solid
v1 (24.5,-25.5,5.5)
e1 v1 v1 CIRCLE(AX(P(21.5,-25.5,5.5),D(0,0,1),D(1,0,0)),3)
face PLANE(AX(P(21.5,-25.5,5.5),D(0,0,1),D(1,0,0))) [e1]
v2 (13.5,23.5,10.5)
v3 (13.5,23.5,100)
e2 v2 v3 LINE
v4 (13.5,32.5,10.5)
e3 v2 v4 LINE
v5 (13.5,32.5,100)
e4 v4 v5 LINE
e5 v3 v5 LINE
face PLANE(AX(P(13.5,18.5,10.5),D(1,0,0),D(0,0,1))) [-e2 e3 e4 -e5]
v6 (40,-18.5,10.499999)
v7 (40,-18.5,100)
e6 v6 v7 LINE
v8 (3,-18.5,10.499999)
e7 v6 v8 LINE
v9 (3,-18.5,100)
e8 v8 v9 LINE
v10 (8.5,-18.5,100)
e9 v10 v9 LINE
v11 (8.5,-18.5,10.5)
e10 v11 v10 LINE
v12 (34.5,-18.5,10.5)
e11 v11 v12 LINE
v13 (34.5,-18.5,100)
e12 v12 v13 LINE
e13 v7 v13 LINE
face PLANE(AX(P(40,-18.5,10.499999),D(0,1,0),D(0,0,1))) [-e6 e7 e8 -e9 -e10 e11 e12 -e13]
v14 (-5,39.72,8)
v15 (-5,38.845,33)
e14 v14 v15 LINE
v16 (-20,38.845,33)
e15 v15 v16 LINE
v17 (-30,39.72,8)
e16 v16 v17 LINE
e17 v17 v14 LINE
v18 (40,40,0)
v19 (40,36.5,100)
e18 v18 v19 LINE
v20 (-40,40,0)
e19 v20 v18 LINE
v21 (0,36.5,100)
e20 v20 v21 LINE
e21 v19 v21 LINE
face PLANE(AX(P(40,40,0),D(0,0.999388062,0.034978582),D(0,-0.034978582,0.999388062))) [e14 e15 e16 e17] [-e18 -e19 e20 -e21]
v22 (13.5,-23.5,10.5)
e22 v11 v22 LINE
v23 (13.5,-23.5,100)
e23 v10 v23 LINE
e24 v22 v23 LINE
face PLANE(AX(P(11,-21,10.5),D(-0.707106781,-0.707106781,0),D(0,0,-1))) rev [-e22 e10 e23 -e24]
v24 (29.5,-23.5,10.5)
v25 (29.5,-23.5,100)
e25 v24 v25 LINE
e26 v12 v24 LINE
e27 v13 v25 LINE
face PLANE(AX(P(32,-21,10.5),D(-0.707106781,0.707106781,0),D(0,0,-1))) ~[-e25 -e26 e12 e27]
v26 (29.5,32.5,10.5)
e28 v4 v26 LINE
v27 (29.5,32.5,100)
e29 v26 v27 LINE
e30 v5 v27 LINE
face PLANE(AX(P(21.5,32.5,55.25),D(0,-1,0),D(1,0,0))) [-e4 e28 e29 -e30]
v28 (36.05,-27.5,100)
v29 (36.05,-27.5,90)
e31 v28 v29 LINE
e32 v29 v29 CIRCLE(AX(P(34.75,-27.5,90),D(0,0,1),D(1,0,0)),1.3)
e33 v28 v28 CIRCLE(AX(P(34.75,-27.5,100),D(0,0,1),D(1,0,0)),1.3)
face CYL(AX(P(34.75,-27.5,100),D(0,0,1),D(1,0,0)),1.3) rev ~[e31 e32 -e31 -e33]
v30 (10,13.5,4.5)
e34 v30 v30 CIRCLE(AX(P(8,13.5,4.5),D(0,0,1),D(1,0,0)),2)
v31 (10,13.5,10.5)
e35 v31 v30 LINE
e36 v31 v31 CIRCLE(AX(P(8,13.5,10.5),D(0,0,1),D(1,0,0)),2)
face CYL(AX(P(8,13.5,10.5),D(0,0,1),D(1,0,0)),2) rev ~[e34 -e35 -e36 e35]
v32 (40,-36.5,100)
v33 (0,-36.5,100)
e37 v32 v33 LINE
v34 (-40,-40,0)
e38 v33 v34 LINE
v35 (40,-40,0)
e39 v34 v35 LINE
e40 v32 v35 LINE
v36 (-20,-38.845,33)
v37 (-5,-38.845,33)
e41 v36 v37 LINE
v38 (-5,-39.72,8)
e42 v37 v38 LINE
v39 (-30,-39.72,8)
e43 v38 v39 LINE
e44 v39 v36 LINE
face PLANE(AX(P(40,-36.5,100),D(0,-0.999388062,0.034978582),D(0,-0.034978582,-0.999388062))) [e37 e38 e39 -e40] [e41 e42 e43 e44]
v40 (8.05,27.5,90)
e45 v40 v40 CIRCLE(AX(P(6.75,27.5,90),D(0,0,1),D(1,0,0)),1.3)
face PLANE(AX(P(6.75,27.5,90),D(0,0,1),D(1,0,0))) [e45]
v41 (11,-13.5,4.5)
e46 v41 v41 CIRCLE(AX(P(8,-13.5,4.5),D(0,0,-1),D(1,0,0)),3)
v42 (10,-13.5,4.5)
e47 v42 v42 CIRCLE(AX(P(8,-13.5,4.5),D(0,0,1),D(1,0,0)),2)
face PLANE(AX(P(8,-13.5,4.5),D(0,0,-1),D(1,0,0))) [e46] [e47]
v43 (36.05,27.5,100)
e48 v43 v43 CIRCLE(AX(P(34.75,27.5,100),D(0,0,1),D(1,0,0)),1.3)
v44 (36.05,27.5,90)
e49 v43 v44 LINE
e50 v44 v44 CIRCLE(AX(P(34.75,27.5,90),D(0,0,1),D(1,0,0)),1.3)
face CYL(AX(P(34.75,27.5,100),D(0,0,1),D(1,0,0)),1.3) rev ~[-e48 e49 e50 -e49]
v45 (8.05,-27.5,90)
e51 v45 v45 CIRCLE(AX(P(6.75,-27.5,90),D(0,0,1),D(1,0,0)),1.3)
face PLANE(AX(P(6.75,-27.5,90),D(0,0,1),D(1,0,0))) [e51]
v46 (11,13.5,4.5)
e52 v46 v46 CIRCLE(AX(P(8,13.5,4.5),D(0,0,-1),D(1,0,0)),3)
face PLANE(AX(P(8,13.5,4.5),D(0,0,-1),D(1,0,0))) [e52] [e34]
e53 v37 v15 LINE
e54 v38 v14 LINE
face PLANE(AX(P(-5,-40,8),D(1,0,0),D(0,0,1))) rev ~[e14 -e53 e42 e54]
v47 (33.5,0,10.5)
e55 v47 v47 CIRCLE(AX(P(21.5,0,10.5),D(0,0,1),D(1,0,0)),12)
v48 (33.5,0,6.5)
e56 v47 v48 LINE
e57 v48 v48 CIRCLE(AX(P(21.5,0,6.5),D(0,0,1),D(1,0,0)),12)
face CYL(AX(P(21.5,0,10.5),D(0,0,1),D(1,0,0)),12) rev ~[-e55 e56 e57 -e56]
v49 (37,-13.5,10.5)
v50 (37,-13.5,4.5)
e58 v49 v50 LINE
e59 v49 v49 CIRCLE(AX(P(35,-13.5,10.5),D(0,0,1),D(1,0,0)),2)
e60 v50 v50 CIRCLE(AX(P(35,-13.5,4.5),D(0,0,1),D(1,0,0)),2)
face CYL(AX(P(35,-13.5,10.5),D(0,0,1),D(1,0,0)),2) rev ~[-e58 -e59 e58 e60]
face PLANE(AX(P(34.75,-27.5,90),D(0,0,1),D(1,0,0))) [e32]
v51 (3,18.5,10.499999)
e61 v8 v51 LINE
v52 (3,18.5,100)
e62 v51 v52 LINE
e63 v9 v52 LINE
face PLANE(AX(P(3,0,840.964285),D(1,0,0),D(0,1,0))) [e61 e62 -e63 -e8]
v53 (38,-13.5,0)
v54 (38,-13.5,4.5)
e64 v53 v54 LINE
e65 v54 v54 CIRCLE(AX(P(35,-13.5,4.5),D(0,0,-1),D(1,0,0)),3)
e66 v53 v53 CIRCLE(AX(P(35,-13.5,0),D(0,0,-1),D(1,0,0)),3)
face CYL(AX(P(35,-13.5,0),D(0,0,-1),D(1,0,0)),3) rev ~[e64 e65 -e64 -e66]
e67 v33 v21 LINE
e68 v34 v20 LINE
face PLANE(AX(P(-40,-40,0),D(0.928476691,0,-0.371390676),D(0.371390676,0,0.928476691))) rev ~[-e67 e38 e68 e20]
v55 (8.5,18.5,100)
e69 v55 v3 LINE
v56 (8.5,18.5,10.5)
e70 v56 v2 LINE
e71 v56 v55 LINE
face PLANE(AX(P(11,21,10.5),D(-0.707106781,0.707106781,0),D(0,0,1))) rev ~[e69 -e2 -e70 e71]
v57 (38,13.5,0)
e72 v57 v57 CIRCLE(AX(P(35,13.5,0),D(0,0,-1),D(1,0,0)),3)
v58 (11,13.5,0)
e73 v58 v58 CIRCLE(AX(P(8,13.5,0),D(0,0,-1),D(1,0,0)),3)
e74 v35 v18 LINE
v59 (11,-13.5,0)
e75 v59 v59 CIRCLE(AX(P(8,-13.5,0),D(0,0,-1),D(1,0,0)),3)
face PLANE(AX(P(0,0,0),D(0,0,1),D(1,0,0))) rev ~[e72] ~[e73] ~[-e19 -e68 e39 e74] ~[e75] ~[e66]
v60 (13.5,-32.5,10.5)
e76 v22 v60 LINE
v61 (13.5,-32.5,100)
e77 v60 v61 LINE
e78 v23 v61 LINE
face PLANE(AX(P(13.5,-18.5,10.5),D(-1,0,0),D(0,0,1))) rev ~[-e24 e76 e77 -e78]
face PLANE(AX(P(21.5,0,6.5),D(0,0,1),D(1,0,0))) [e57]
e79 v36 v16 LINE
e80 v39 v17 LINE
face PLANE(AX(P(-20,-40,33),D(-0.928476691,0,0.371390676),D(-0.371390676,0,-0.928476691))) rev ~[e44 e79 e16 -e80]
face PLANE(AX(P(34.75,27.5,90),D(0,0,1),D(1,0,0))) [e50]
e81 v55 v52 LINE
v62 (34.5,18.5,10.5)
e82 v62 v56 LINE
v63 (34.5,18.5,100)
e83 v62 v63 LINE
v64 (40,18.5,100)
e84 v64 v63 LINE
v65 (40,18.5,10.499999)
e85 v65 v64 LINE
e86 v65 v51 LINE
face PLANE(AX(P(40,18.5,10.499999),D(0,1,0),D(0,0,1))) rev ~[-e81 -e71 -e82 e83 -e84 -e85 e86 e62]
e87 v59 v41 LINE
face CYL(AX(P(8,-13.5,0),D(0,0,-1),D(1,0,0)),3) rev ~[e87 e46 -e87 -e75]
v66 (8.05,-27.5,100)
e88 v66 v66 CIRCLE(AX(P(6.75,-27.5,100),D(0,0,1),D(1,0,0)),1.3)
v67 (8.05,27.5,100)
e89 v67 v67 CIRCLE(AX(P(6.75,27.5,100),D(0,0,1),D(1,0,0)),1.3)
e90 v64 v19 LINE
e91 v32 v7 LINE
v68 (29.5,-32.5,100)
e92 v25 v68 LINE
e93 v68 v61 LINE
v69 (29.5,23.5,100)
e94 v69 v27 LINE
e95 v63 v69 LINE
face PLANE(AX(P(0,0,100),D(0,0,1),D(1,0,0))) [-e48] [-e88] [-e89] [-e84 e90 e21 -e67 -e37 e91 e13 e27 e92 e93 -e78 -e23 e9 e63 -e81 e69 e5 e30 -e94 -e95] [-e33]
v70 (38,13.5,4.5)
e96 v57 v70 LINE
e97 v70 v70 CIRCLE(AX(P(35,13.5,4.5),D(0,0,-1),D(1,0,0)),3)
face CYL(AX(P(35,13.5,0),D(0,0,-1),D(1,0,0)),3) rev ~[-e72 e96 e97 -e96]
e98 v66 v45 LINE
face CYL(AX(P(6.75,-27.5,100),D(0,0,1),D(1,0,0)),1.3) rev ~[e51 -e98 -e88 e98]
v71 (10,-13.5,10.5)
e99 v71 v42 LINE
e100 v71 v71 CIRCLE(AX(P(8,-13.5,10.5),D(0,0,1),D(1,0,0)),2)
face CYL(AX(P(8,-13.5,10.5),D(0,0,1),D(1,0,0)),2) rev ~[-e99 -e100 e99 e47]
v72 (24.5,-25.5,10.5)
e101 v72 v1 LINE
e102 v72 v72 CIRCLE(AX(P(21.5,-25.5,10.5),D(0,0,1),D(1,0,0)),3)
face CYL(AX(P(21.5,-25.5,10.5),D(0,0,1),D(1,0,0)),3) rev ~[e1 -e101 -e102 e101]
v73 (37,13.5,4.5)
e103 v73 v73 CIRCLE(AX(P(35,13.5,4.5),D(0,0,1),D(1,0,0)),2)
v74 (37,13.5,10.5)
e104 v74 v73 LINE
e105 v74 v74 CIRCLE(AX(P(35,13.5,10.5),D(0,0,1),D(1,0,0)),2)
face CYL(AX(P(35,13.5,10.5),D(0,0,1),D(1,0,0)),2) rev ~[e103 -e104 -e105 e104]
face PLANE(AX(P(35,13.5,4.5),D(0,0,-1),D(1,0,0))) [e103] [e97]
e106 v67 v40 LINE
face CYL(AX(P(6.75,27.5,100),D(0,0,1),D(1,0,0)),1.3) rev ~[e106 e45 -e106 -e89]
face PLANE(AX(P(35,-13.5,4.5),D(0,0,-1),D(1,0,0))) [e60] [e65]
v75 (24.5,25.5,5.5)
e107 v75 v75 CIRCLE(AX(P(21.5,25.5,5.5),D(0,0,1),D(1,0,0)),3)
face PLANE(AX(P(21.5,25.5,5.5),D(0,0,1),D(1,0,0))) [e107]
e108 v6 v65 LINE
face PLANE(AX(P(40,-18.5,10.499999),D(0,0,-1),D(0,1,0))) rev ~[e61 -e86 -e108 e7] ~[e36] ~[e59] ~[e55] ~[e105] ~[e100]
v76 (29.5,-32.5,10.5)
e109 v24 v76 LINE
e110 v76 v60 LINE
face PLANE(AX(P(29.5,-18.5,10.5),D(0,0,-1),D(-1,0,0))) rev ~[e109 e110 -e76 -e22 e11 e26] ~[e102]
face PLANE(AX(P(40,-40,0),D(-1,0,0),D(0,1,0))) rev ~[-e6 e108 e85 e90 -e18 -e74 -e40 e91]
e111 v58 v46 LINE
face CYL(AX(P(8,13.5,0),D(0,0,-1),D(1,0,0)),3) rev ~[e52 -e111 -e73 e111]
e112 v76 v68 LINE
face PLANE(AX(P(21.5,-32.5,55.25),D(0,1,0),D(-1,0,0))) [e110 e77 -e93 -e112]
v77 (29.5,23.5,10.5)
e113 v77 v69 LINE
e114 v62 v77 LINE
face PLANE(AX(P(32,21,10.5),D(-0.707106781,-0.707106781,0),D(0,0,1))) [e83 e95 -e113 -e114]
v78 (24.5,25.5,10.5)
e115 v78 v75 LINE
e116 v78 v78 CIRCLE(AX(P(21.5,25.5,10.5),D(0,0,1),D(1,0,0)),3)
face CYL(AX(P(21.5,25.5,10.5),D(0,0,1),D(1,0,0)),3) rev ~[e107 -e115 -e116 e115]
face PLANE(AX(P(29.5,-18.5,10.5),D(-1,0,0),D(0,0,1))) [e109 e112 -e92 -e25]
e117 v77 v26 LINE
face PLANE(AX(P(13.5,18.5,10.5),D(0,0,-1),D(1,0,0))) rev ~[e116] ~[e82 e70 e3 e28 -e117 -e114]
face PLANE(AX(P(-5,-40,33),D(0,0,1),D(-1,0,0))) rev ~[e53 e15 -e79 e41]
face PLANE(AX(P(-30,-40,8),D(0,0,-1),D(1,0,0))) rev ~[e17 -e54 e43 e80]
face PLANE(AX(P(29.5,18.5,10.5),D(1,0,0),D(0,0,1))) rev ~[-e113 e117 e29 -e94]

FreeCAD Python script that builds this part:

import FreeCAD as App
import Part
import Sketcher


def edges_at(feature, points):
    """Names of the edges that pass closest to the given points."""
    edges = feature.Shape.Edges
    near = lambda p: min(range(len(edges)), key=lambda i: edges[i].distToShape(Part.Vertex(*p))[0])
    return sorted({f"Edge{near(p) + 1}" for p in points})


def add_polygon(sketch, points):
    """Adds a closed chain of lines whose ends are joined by coincident constraints."""
    first, n = sketch.GeometryCount, len(points)
    for a, b in zip(points, points[1:] + points[:1]):
        sketch.addGeometry(Part.LineSegment(App.Vector(*a, 0), App.Vector(*b, 0)), False)
    for i in range(n):
        sketch.addConstraint(Sketcher.Constraint("Coincident", first + i, 2, first + (i + 1) % n, 1))

doc = App.newDocument("Part")
body = doc.addObject("PartDesign::Body", "Body")

# Sketch on XY plane
sketch1 = doc.addObject("Sketcher::SketchObject", "Sketch")
body.addObject(sketch1)
sketch1.AttachmentSupport = (doc.XY_Plane, [""])
sketch1.MapMode = "FlatFace"
add_polygon(sketch1, [(-40, 40), (-40, -40), (40, -40), (40, 40)])  # lines 0-3
sketch1.addConstraint([
    Sketcher.Constraint("Vertical", 0),
    Sketcher.Constraint("Horizontal", 1),
    Sketcher.Constraint("Vertical", 2),
    Sketcher.Constraint("Horizontal", 3),
    Sketcher.Constraint("Symmetric", 0, 2, 2, 2, -1, 1),
    Sketcher.Constraint("Equal", 3, 0),
    Sketcher.Constraint("DistanceX", 1, 1, 1, 2, 80.0),
])
pad1 = doc.addObject("PartDesign::Pad", "Pad")
body.addObject(pad1)
pad1.Profile = sketch1
pad1.Length = 100

# Sketch on XZ plane
sketch2 = doc.addObject("Sketcher::SketchObject", "Sketch001")
body.addObject(sketch2)
sketch2.AttachmentSupport = (doc.XZ_Plane, [""])
sketch2.MapMode = "FlatFace"
sketch2.AttachmentOffset = App.Placement(App.Vector(0, 0, 40), App.Rotation())
add_polygon(sketch2, [(-40, 0), (0, 100), (-40, 100)])  # lines 0-2
add_polygon(sketch2, [(-30, 8), (-5, 8), (-5, 33), (-20, 33)])  # lines 3-6
sketch2.addConstraint([
    Sketcher.Constraint("Horizontal", 1),
    Sketcher.Constraint("Vertical", 2),
    Sketcher.Constraint("Horizontal", 3),
    Sketcher.Constraint("Vertical", 4),
    Sketcher.Constraint("Horizontal", 5),
    Sketcher.Constraint("PointOnObject", 0, 2, -2),
    Sketcher.Constraint("PointOnObject", 2, 2, -1),
    Sketcher.Constraint("Parallel", 0, 6),
    Sketcher.Constraint("Equal", 3, 4),
    Sketcher.Constraint("DistanceX", 1, 2, 1, 1, 40.0),
    Sketcher.Constraint("DistanceX", 3, 1, 3, 2, 25.0),
    Sketcher.Constraint("DistanceX", 5, 2, 5, 1, 15.0),
    Sketcher.Constraint("DistanceX", 3, 2, -1, 1, 5.0),
    Sketcher.Constraint("DistanceY", -1, 1, 3, 2, 8.0),
])
pocket1 = doc.addObject("PartDesign::Pocket", "Pocket")
body.addObject(pocket1)
pocket1.Profile = sketch2
pocket1.Type = "ThroughAll"

# Sketch on YZ plane
sketch3 = doc.addObject("Sketcher::SketchObject", "Sketch002")
body.addObject(sketch3)
sketch3.AttachmentSupport = (doc.YZ_Plane, [""])
sketch3.MapMode = "FlatFace"
sketch3.AttachmentOffset = App.Placement(App.Vector(0, 0, 40), App.Rotation())
add_polygon(sketch3, [(-40, 0), (-36.5, 100), (-40, 100)])  # lines 0-2
add_polygon(sketch3, [(36.5, 100), (40, 0), (40, 100)])  # lines 3-5
sketch3.addConstraint([
    Sketcher.Constraint("Horizontal", 1),
    Sketcher.Constraint("Vertical", 2),
    Sketcher.Constraint("Vertical", 4),
    Sketcher.Constraint("Horizontal", 5),
    Sketcher.Constraint("Symmetric", 2, 2, 3, 2, -1, 1),
    Sketcher.Constraint("Symmetric", 0, 2, 5, 2, -2),
    Sketcher.Constraint("PointOnObject", 2, 2, -1),
    Sketcher.Constraint("DistanceY", 2, 2, 2, 1, 100.0),
    Sketcher.Constraint("DistanceX", 1, 2, 1, 1, 3.5),
    Sketcher.Constraint("DistanceX", 1, 2, -1, 1, 40.0),
])
pocket2 = doc.addObject("PartDesign::Pocket", "Pocket001")
body.addObject(pocket2)
pocket2.Profile = sketch3
pocket2.Type = "ThroughAll"

# Sketch on YZ plane
sketch4 = doc.addObject("Sketcher::SketchObject", "Sketch003")
body.addObject(sketch4)
sketch4.AttachmentSupport = (doc.YZ_Plane, [""])
sketch4.MapMode = "FlatFace"
sketch4.AttachmentOffset = App.Placement(App.Vector(0, 0, 40), App.Rotation())
add_polygon(sketch4, [(-18.5, 1671.42857), (-18.5, 10.499999), (18.5, 10.499999), (18.5, 1671.42857)])  # lines 0-3
sketch4.addConstraint([
    Sketcher.Constraint("Vertical", 0),
    Sketcher.Constraint("Horizontal", 1),
    Sketcher.Constraint("Vertical", 2),
    Sketcher.Constraint("Horizontal", 3),
    Sketcher.Constraint("DistanceX", 1, 1, 1, 2, 37.0),
    Sketcher.Constraint("DistanceX", 0, 2, -1, 1, 18.5),
    Sketcher.Constraint("DistanceY", -1, 1, 0, 2, 10.499999),
    Sketcher.Constraint("DistanceY", 0, 2, 0, 1, 1660.928571),
])
pocket3 = doc.addObject("PartDesign::Pocket", "Pocket002")
body.addObject(pocket3)
pocket3.Profile = sketch4
pocket3.Length = 37

# Sketch on XY plane
sketch5 = doc.addObject("Sketcher::SketchObject", "Sketch004")
body.addObject(sketch5)
sketch5.AttachmentSupport = (doc.XY_Plane, [""])
sketch5.MapMode = "FlatFace"
sketch5.AttachmentOffset = App.Placement(App.Vector(0, 0, 10.5), App.Rotation())
sketch5.addGeometry(Part.Circle(App.Vector(21.5, 0, 0), App.Vector(0, 0, 1), 12), False)
sketch5.addConstraint([
    Sketcher.Constraint("PointOnObject", 0, 3, -1),
    Sketcher.Constraint("Diameter", 0, 24.0),
    Sketcher.Constraint("DistanceX", -1, 1, 0, 3, 21.5),
])
pocket4 = doc.addObject("PartDesign::Pocket", "Pocket003")
body.addObject(pocket4)
pocket4.Profile = sketch5
pocket4.Length = 4

# Sketch on XY plane
sketch6 = doc.addObject("Sketcher::SketchObject", "Sketch005")
body.addObject(sketch6)
sketch6.AttachmentSupport = (doc.XY_Plane, [""])
sketch6.MapMode = "FlatFace"
sketch6.AttachmentOffset = App.Placement(App.Vector(0, 0, 10.5), App.Rotation())
sketch6.addGeometry([
    Part.Circle(App.Vector(8, 13.5, 0), App.Vector(0, 0, 1), 2),
    Part.Circle(App.Vector(35, 13.5, 0), App.Vector(0, 0, 1), 2),
    Part.Circle(App.Vector(35, -13.5, 0), App.Vector(0, 0, 1), 2),
    Part.Circle(App.Vector(8, -13.5, 0), App.Vector(0, 0, 1), 2),
], False)
sketch6.addConstraint([
    Sketcher.Constraint("Equal", 0, 1),
    Sketcher.Constraint("Equal", 1, 2),
    Sketcher.Constraint("Equal", 2, 3),
    Sketcher.Constraint("Symmetric", 1, 3, 2, 3, -1),
    Sketcher.Constraint("Symmetric", 0, 3, 3, 3, -1),
    Sketcher.Constraint("Horizontal", 0, 3, 1, 3),
    Sketcher.Constraint("Diameter", 0, 4.0),
    Sketcher.Constraint("DistanceX", -1, 1, 0, 3, 8.0),
    Sketcher.Constraint("DistanceX", -1, 1, 1, 3, 35.0),
    Sketcher.Constraint("DistanceY", 2, 3, 1, 3, 27.0),
])
pocket5 = doc.addObject("PartDesign::Pocket", "Pocket004")
body.addObject(pocket5)
pocket5.Profile = sketch6
pocket5.Type = "ThroughAll"

# Sketch on XY plane
sketch7 = doc.addObject("Sketcher::SketchObject", "Sketch006")
body.addObject(sketch7)
sketch7.AttachmentSupport = (doc.XY_Plane, [""])
sketch7.MapMode = "FlatFace"
sketch7.addGeometry([
    Part.Circle(App.Vector(8, -13.5, 0), App.Vector(0, 0, 1), 3),
    Part.Circle(App.Vector(35, -13.5, 0), App.Vector(0, 0, 1), 3),
    Part.Circle(App.Vector(35, 13.5, 0), App.Vector(0, 0, 1), 3),
    Part.Circle(App.Vector(8, 13.5, 0), App.Vector(0, 0, 1), 3),
], False)
sketch7.addConstraint([
    Sketcher.Constraint("Equal", 0, 1),
    Sketcher.Constraint("Equal", 1, 2),
    Sketcher.Constraint("Equal", 2, 3),
    Sketcher.Constraint("Symmetric", 1, 3, 2, 3, -1),
    Sketcher.Constraint("Symmetric", 0, 3, 3, 3, -1),
    Sketcher.Constraint("Horizontal", 0, 3, 1, 3),
    Sketcher.Constraint("Diameter", 0, 6.0),
    Sketcher.Constraint("DistanceX", -1, 1, 0, 3, 8.0),
    Sketcher.Constraint("DistanceX", -1, 1, 1, 3, 35.0),
    Sketcher.Constraint("DistanceY", 1, 3, 2, 3, 27.0),
])
pocket6 = doc.addObject("PartDesign::Pocket", "Pocket005")
body.addObject(pocket6)
pocket6.Profile = sketch7
pocket6.Length = 4.5
pocket6.Reversed = True

# Sketch on XZ plane
sketch8 = doc.addObject("Sketcher::SketchObject", "Sketch007")
body.addObject(sketch8)
sketch8.AttachmentSupport = (doc.XZ_Plane, [""])
sketch8.MapMode = "FlatFace"
sketch8.AttachmentOffset = App.Placement(App.Vector(0, 0, -18.5), App.Rotation())
add_polygon(sketch8, [(13.5, 100), (13.5, 10.5), (29.5, 10.5), (29.5, 100)])  # lines 0-3
sketch8.addConstraint([
    Sketcher.Constraint("Vertical", 0),
    Sketcher.Constraint("Horizontal", 1),
    Sketcher.Constraint("Vertical", 2),
    Sketcher.Constraint("Horizontal", 3),
    Sketcher.Constraint("DistanceX", 1, 1, 1, 2, 16.0),
    Sketcher.Constraint("DistanceY", 0, 2, 0, 1, 89.5),
    Sketcher.Constraint("DistanceY", -1, 1, 2, 2, 100.0),
    Sketcher.Constraint("DistanceX", -1, 1, 0, 2, 13.5),
])
pocket7 = doc.addObject("PartDesign::Pocket", "Pocket006")
body.addObject(pocket7)
pocket7.Profile = sketch8
pocket7.Length = 14

# Sketch on XZ plane
sketch9 = doc.addObject("Sketcher::SketchObject", "Sketch008")
body.addObject(sketch9)
sketch9.AttachmentSupport = (doc.XZ_Plane, [""])
sketch9.MapMode = "FlatFace"
sketch9.AttachmentOffset = App.Placement(App.Vector(0, 0, 18.5), App.Rotation())
add_polygon(sketch9, [(29.5, 100), (29.5, 10.5), (13.5, 10.5), (13.5, 100)])  # lines 0-3
sketch9.addConstraint([
    Sketcher.Constraint("Vertical", 0),
    Sketcher.Constraint("Horizontal", 1),
    Sketcher.Constraint("Vertical", 2),
    Sketcher.Constraint("Horizontal", 3),
    Sketcher.Constraint("DistanceX", 1, 2, 1, 1, 16.0),
    Sketcher.Constraint("DistanceY", 0, 2, 0, 1, 89.5),
    Sketcher.Constraint("DistanceY", -1, 1, 2, 2, 100.0),
    Sketcher.Constraint("DistanceX", -1, 1, 0, 2, 29.5),
])
pocket8 = doc.addObject("PartDesign::Pocket", "Pocket007")
body.addObject(pocket8)
pocket8.Profile = sketch9
pocket8.Length = 14
pocket8.Reversed = True

# Sketch on XY plane
sketch10 = doc.addObject("Sketcher::SketchObject", "Sketch009")
body.addObject(sketch10)
sketch10.AttachmentSupport = (doc.XY_Plane, [""])
sketch10.MapMode = "FlatFace"
sketch10.AttachmentOffset = App.Placement(App.Vector(0, 0, 10.5), App.Rotation())
sketch10.addGeometry([
    Part.Circle(App.Vector(21.5, -25.5, 0), App.Vector(0, 0, 1), 3),
    Part.Circle(App.Vector(21.5, 25.5, 0), App.Vector(0, 0, 1), 3),
], False)
sketch10.addConstraint([
    Sketcher.Constraint("Equal", 0, 1),
    Sketcher.Constraint("Symmetric", 0, 3, 1, 3, -1),
    Sketcher.Constraint("Diameter", 0, 6.0),
    Sketcher.Constraint("DistanceY", 0, 3, 1, 3, 51.0),
    Sketcher.Constraint("DistanceX", -1, 1, 0, 3, 21.5),
])
pocket9 = doc.addObject("PartDesign::Pocket", "Pocket008")
body.addObject(pocket9)
pocket9.Profile = sketch10
pocket9.Length = 5

# Sketch on XY plane
sketch11 = doc.addObject("Sketcher::SketchObject", "Sketch010")
body.addObject(sketch11)
sketch11.AttachmentSupport = (doc.XY_Plane, [""])
sketch11.MapMode = "FlatFace"
sketch11.AttachmentOffset = App.Placement(App.Vector(0, 0, 100), App.Rotation())
sketch11.addGeometry([
    Part.Circle(App.Vector(6.75, 27.5, 0), App.Vector(0, 0, 1), 1.3),
    Part.Circle(App.Vector(34.75, 27.5, 0), App.Vector(0, 0, 1), 1.3),
    Part.Circle(App.Vector(6.75, -27.5, 0), App.Vector(0, 0, 1), 1.3),
    Part.Circle(App.Vector(34.75, -27.5, 0), App.Vector(0, 0, 1), 1.3),
], False)
sketch11.addConstraint([
    Sketcher.Constraint("Equal", 0, 1),
    Sketcher.Constraint("Equal", 1, 2),
    Sketcher.Constraint("Equal", 2, 3),
    Sketcher.Constraint("Symmetric", 0, 3, 2, 3, -1),
    Sketcher.Constraint("Symmetric", 1, 3, 3, 3, -1),
    Sketcher.Constraint("Horizontal", 0, 3, 1, 3),
    Sketcher.Constraint("Diameter", 0, 2.6),
    Sketcher.Constraint("DistanceX", 0, 3, 1, 3, 28.0),
    Sketcher.Constraint("DistanceY", 2, 3, 0, 3, 55.0),
    Sketcher.Constraint("DistanceX", -1, 1, 0, 3, 6.75),
])
pocket10 = doc.addObject("PartDesign::Pocket", "Pocket009")
body.addObject(pocket10)
pocket10.Profile = sketch11
pocket10.Length = 10
doc.recompute()

chamfer = doc.addObject("PartDesign::Chamfer", "Chamfer")
body.addObject(chamfer)
chamfer.Base = (pocket10, edges_at(pocket10, [
    (29.5, -18.5, 55.25),
    (13.5, -18.5, 55.25),
    (13.5, 18.5, 55.25),
    (29.5, 18.5, 55.25),
]))
chamfer.Size = 5

doc.recompute()
